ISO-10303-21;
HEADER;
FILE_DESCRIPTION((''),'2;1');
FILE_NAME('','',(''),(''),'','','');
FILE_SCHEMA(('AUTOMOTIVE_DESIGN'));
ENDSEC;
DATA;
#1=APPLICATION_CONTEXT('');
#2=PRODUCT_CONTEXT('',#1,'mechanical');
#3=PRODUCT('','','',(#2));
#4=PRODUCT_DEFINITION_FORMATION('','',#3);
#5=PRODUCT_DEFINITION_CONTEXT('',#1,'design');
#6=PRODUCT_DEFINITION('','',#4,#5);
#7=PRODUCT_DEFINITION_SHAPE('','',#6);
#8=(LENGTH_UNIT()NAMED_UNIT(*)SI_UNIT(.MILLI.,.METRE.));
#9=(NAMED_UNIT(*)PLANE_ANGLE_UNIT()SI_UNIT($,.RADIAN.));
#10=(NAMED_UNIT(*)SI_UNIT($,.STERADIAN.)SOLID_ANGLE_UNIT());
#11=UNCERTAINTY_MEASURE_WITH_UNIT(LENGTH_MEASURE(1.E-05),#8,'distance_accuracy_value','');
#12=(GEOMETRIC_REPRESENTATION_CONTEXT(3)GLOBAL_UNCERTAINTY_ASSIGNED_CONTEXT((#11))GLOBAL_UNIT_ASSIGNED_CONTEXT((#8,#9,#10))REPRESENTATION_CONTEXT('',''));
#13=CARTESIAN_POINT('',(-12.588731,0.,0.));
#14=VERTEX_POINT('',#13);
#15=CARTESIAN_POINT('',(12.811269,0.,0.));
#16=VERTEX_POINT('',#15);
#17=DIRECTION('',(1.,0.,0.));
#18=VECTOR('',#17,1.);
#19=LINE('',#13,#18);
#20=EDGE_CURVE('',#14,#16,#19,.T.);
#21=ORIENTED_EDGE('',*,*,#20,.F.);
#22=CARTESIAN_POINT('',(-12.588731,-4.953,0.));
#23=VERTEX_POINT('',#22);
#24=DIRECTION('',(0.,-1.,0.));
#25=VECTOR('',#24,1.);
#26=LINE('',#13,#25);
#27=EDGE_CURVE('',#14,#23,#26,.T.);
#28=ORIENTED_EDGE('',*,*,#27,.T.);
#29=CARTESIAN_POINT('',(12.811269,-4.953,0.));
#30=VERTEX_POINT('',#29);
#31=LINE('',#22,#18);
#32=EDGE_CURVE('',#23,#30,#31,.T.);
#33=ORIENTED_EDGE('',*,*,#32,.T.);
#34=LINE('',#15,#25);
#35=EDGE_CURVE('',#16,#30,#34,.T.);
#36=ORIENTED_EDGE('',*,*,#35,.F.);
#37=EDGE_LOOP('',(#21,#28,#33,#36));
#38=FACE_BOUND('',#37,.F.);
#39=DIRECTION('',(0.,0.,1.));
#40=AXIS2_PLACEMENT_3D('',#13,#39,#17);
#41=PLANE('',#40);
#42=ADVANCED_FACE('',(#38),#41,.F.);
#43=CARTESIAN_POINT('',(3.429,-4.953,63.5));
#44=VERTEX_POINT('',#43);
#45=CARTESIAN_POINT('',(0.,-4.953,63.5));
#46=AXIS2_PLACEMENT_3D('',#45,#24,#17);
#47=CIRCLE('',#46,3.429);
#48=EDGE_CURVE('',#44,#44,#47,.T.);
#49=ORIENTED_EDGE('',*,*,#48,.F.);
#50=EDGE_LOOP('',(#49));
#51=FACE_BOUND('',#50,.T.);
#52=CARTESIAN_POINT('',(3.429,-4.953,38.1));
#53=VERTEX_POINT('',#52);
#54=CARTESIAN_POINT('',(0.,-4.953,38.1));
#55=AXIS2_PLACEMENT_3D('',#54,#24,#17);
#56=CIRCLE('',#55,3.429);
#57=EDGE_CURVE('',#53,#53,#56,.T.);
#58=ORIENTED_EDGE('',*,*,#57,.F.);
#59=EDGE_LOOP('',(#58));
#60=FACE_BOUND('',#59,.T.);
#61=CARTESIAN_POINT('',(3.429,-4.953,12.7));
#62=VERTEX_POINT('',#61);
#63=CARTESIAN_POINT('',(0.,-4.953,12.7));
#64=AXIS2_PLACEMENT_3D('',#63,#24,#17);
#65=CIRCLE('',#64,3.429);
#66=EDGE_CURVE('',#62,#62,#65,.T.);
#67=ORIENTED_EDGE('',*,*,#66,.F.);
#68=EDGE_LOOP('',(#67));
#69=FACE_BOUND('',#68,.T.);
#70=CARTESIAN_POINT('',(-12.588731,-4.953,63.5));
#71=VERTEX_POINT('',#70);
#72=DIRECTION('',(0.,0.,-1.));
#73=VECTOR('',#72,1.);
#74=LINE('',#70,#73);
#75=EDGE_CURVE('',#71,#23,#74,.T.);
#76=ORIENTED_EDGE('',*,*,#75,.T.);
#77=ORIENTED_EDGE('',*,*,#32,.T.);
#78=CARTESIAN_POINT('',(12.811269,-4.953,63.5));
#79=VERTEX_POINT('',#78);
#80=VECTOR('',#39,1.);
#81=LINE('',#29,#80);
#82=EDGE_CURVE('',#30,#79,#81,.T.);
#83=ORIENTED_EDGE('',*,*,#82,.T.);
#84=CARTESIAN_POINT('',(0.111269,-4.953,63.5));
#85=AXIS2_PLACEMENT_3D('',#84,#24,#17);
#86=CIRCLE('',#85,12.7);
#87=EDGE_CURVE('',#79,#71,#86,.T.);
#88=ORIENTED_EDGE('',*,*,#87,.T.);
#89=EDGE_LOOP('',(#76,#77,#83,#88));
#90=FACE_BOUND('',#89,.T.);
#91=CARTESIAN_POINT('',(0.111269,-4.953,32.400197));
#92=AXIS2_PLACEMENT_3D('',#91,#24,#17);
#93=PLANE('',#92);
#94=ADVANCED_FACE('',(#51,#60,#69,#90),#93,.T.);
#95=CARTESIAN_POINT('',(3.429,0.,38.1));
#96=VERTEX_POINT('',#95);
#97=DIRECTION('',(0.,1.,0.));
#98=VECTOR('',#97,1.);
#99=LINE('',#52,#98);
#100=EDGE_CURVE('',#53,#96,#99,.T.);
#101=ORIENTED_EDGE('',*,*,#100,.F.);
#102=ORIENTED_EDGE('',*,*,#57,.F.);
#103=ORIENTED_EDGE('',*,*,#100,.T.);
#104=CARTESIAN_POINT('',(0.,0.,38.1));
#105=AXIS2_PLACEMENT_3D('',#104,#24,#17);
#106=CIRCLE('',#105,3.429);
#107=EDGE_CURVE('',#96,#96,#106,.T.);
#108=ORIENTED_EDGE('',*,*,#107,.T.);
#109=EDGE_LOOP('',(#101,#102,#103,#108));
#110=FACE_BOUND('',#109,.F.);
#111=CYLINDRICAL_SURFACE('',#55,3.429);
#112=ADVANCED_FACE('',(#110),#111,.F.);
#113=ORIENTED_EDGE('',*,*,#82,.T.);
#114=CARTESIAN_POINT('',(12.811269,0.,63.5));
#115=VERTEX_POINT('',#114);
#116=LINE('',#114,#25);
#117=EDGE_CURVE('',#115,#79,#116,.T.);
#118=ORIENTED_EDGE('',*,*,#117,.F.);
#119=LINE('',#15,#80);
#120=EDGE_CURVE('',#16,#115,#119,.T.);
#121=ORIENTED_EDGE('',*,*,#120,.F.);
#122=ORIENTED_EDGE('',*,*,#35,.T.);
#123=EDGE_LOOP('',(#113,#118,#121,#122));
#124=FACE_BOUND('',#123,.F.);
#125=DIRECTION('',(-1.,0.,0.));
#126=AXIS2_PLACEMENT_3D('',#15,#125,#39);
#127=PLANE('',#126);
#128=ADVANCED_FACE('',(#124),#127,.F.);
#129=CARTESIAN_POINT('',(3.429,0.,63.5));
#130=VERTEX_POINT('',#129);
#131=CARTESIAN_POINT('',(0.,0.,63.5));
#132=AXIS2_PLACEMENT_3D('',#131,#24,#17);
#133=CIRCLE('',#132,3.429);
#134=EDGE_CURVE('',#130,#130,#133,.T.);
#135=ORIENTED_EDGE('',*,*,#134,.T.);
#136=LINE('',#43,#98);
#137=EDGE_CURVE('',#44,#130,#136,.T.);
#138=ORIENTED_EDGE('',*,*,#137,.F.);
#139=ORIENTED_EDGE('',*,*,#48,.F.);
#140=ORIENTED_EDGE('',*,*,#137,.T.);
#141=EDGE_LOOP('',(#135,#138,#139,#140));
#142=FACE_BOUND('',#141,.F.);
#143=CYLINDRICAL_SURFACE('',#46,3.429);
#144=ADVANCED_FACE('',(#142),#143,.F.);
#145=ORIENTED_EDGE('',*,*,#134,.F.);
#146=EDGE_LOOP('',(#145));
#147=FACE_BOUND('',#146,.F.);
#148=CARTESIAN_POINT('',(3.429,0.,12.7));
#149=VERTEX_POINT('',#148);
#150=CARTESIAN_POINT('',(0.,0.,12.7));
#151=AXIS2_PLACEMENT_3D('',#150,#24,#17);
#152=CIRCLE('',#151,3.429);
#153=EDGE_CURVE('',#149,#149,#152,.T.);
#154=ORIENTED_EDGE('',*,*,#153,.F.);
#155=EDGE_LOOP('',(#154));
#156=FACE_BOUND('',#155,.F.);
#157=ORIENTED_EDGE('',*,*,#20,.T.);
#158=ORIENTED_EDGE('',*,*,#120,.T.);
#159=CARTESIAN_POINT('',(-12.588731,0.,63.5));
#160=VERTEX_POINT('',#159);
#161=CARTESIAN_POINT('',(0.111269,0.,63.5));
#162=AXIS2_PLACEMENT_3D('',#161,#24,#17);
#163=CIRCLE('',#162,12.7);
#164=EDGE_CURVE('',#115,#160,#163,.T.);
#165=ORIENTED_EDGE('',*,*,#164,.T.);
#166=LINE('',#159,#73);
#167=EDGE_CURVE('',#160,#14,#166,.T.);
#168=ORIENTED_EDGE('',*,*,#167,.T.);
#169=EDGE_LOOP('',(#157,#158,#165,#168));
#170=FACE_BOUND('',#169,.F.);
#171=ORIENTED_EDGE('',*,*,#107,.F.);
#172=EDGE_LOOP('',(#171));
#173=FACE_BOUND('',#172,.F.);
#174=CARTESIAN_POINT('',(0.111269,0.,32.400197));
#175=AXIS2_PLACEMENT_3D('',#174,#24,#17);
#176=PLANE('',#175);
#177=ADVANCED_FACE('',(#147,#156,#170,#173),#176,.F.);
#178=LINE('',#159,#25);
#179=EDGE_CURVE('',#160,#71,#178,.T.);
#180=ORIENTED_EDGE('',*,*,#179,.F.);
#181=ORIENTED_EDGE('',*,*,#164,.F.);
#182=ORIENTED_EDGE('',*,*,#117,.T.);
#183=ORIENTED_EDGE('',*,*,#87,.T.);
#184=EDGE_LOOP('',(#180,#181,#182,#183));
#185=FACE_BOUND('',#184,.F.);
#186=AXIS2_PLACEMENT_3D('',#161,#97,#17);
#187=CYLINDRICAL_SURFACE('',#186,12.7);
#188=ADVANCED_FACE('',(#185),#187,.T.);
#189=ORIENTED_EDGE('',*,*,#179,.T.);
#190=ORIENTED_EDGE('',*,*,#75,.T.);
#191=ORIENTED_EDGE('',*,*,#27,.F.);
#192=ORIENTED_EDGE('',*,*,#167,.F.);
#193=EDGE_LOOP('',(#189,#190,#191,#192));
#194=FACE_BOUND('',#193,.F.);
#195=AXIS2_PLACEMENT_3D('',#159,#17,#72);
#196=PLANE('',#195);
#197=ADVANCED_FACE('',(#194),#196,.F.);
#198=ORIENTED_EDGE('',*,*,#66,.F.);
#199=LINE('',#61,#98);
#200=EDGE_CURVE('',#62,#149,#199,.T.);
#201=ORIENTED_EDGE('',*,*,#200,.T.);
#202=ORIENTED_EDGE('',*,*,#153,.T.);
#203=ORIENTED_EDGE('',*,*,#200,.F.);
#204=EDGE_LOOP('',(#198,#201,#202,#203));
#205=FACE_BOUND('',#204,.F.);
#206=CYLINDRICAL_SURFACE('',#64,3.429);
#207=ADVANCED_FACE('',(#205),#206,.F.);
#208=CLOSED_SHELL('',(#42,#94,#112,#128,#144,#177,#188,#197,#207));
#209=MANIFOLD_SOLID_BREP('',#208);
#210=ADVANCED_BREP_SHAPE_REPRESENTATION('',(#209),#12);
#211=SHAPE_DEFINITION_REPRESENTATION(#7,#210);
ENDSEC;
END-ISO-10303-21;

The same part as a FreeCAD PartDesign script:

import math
import FreeCAD as App
import Part
import Sketcher
Q = App.Units.Quantity

doc = App.newDocument("Part")
body = doc.addObject("PartDesign::Body", "Body")

sketch1 = doc.addObject("Sketcher::SketchObject", "Sketch")
body.addObject(sketch1)
sketch1.AttachmentSupport = (doc.XZ_Plane, [""])
sketch1.MapMode = "FlatFace"
sketch1.addGeometry(Part.LineSegment(App.Vector(-13, 0, 0), App.Vector(13, 0, 0)), False)
sketch1.addGeometry(Part.LineSegment(App.Vector(13, 0, 0), App.Vector(13, 64, 0)), False)
sketch1.addGeometry(Part.ArcOfCircle(Part.Circle(App.Vector(0, 64, 0), App.Vector(0, 0, 1), 13), math.radians(0), math.radians(180)), False)
sketch1.addGeometry(Part.LineSegment(App.Vector(-13, 64, 0), App.Vector(-13, 0, 0)), False)
sketch1.addConstraint(Sketcher.Constraint("Coincident", 0, 2, 1, 1))
sketch1.addConstraint(Sketcher.Constraint("Tangent", 1, 2, 2, 1))
sketch1.addConstraint(Sketcher.Constraint("Tangent", 2, 2, 3, 1))
sketch1.addConstraint(Sketcher.Constraint("Coincident", 3, 2, 0, 1))
sketch1.addConstraint(Sketcher.Constraint("Horizontal", 0))
sketch1.addConstraint(Sketcher.Constraint("Vertical", 1))
sketch1.addConstraint(Sketcher.Constraint("Vertical", 3))
sketch1.addConstraint(Sketcher.Constraint("PointOnObject", 0, 2, -1))
sketch1.addConstraint(Sketcher.Constraint("Radius", 2, Q("0.5 in")))
sketch1.addConstraint(Sketcher.Constraint("DistanceY", 1, 1, 1, 2, Q("2.5 in")))
sketch1.addConstraint(Sketcher.Constraint("DistanceX", -1, 1, 2, 3, Q("0.111269 mm")))
pad1 = doc.addObject("PartDesign::Pad", "Pad")
body.addObject(pad1)
pad1.Profile = sketch1
pad1.Length = Q("0.195 in")

sketch2 = doc.addObject("Sketcher::SketchObject", "Sketch001")
body.addObject(sketch2)
sketch2.AttachmentSupport = (doc.XZ_Plane, [""])
sketch2.MapMode = "FlatFace"
sketch2.AttachmentOffset = App.Placement(App.Vector(0, 0, 0.195 * 25.4), App.Rotation())
sketch2.addGeometry(Part.Circle(App.Vector(0, 12.7, 0), App.Vector(0, 0, 1), 3.4), False)
sketch2.addGeometry(Part.Circle(App.Vector(0, 38.1, 0), App.Vector(0, 0, 1), 3.4), False)
sketch2.addGeometry(Part.Circle(App.Vector(0, 63.5, 0), App.Vector(0, 0, 1), 3.4), False)
sketch2.addConstraint(Sketcher.Constraint("Equal", 0, 1))
sketch2.addConstraint(Sketcher.Constraint("Equal", 1, 2))
sketch2.addConstraint(Sketcher.Constraint("PointOnObject", 0, 3, -2))
sketch2.addConstraint(Sketcher.Constraint("PointOnObject", 1, 3, -2))
sketch2.addConstraint(Sketcher.Constraint("PointOnObject", 2, 3, -2))
sketch2.addConstraint(Sketcher.Constraint("Diameter", 0, Q("0.27 in")))
sketch2.addConstraint(Sketcher.Constraint("DistanceY", 0, 3, 1, 3, Q("1 in")))
sketch2.addConstraint(Sketcher.Constraint("DistanceY", 1, 3, 2, 3, Q("1 in")))
sketch2.addConstraint(Sketcher.Constraint("DistanceY", -1, 1, 0, 3, Q("0.5 in")))
pocket1 = doc.addObject("PartDesign::Pocket", "Pocket")
body.addObject(pocket1)
pocket1.Profile = sketch2
pocket1.Length = Q("1 in")

doc.recompute()
